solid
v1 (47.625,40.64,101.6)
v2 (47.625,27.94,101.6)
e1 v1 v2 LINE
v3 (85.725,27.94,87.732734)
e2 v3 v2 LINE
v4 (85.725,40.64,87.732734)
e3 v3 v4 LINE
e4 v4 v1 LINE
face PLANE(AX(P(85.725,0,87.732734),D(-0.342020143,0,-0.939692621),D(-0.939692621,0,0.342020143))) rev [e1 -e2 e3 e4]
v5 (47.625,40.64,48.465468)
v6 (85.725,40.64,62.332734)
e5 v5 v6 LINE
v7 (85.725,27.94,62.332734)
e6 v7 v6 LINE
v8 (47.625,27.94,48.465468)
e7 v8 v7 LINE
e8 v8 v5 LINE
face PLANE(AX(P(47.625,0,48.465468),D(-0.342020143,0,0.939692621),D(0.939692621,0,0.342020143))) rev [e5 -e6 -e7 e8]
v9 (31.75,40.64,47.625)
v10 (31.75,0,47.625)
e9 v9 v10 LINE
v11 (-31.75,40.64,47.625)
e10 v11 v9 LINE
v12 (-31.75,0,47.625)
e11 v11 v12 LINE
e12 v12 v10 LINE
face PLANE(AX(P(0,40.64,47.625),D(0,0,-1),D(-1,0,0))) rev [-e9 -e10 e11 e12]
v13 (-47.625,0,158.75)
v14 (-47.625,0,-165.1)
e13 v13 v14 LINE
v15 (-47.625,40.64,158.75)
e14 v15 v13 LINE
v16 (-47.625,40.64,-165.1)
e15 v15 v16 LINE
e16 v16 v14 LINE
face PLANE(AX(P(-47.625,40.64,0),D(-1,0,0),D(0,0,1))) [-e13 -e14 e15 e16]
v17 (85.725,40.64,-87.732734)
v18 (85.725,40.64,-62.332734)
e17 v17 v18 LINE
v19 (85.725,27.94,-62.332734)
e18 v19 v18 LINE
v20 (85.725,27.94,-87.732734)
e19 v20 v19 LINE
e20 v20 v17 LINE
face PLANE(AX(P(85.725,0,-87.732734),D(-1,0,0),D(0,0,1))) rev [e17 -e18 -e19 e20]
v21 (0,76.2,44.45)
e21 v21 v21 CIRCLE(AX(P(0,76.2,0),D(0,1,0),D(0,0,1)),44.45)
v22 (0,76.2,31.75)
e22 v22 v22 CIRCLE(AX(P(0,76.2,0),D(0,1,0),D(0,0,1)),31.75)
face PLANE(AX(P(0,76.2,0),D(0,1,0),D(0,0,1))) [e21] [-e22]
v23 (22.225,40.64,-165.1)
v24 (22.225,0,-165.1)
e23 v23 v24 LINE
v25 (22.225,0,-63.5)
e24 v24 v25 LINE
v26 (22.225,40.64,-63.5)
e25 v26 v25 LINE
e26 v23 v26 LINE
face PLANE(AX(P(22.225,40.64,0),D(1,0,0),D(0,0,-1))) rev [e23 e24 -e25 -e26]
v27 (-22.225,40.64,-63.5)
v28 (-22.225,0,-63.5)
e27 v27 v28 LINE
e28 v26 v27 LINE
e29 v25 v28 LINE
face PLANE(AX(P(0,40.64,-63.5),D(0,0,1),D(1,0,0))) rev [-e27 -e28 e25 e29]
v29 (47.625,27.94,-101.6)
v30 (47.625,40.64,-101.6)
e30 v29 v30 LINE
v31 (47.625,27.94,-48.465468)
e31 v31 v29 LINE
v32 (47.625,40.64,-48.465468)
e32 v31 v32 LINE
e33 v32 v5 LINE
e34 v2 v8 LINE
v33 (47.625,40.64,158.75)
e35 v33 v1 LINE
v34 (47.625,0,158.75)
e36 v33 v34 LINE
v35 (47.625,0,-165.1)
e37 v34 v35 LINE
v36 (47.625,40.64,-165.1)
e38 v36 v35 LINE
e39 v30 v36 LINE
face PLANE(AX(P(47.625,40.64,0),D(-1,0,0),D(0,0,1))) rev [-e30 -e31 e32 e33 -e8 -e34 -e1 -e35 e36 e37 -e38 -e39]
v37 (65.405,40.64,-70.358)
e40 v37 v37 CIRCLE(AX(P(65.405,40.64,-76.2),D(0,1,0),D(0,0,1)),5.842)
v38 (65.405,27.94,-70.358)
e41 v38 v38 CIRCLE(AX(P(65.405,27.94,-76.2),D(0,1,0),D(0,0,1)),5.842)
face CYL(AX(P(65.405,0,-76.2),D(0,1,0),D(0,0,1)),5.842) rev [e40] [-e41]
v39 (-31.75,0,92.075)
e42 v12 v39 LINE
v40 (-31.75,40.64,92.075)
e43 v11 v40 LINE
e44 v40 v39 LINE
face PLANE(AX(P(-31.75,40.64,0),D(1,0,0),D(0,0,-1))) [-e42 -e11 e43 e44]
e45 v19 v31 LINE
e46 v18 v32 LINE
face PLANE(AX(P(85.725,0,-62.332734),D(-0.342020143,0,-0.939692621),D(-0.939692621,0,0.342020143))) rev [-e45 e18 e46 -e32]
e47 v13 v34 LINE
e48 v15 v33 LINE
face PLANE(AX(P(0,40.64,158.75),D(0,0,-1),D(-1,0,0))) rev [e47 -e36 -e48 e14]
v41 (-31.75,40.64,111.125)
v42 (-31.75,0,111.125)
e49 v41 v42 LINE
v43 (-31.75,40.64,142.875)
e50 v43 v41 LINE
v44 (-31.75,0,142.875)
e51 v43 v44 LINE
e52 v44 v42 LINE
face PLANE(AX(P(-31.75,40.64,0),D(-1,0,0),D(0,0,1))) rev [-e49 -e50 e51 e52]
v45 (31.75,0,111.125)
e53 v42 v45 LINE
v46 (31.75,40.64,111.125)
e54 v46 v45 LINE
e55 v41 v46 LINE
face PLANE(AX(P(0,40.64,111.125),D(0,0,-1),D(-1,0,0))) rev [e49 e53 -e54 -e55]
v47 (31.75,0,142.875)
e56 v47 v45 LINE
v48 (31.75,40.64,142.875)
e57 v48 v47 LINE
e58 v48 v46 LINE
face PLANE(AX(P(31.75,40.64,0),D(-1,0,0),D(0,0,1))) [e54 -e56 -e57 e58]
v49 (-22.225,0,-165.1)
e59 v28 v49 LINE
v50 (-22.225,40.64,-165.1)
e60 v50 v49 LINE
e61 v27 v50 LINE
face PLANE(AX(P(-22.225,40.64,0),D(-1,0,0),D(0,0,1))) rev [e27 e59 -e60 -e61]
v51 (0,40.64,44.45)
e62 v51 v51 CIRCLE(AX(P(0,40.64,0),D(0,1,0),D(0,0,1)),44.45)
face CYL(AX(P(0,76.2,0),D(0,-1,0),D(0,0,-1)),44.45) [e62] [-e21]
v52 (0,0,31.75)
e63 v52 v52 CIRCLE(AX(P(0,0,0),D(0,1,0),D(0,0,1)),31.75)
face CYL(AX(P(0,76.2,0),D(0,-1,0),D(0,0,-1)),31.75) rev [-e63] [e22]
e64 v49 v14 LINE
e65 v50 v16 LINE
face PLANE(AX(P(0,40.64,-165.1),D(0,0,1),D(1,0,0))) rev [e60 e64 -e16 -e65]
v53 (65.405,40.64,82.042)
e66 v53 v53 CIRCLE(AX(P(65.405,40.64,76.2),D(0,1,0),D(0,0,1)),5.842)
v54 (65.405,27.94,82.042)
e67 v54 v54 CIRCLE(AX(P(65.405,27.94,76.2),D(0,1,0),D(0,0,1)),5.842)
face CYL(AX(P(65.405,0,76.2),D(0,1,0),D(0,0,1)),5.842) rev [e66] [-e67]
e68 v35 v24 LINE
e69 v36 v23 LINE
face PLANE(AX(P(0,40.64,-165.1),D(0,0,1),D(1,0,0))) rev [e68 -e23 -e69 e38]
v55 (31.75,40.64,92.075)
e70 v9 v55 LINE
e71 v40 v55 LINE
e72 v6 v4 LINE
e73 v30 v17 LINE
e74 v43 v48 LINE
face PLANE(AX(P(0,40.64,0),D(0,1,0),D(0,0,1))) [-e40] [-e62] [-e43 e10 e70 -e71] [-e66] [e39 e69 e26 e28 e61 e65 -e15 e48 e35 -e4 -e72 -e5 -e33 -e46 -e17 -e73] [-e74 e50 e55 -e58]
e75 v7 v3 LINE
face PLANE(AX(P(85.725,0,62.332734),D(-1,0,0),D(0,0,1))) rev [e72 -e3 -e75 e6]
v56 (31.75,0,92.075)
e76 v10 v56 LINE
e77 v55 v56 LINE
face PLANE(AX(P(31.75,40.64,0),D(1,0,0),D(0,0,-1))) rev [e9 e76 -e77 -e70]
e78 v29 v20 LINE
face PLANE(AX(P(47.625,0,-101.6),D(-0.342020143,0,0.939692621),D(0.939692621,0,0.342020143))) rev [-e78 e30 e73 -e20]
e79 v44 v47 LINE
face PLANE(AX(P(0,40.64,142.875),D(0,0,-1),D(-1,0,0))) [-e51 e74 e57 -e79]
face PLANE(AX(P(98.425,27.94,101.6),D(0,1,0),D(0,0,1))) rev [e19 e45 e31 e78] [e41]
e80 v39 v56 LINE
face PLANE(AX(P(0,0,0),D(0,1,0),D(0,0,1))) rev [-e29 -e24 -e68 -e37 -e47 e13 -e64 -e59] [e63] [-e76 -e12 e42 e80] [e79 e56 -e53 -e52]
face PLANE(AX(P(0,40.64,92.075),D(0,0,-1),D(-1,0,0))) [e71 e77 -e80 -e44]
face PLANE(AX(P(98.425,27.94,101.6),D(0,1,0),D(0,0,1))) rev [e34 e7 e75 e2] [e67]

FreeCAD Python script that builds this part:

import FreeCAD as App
import Part
import Sketcher

V = App.Vector
Q = App.Units.Quantity


def add_polygon(sketch, points):
    """Adds a closed chain of lines whose ends are joined by coincident constraints."""
    first, n = sketch.GeometryCount, len(points)
    for a, b in zip(points, points[1:] + points[:1]):
        sketch.addGeometry(Part.LineSegment(App.Vector(*a, 0), App.Vector(*b, 0)), False)
    for i in range(n):
        sketch.addConstraint(Sketcher.Constraint("Coincident", first + i, 2, first + (i + 1) % n, 1))

doc = App.newDocument("Part")
body = doc.addObject("PartDesign::Body", "Body")

sketch1 = body.newObject("Sketcher::SketchObject", "Sketch")
sketch1.AttachmentSupport = (doc.getObject("XZ_Plane"), [""])
sketch1.MapMode = "FlatFace"
add_polygon(sketch1, [(-22, -64), (-22, -165), (-48, -165), (-48, 159), (48, 159), (48, -165), (22, -165), (22, -64)])
add_polygon(sketch1, [(32, 143), (-32, 143), (-32, 111), (32, 111)])
add_polygon(sketch1, [(32, 92), (-32, 92), (-32, 48), (32, 48)])
sketch1.addGeometry(Part.Circle(V(0, 0, 0), V(0, 0, 1), 44), False)
sketch1.addConstraint([
    Sketcher.Constraint("Vertical", 0),
    Sketcher.Constraint("Horizontal", 1),
    Sketcher.Constraint("Vertical", 2),
    Sketcher.Constraint("Horizontal", 3),
    Sketcher.Constraint("Vertical", 4),
    Sketcher.Constraint("Horizontal", 5),
    Sketcher.Constraint("Vertical", 6),
    Sketcher.Constraint("Horizontal", 7),
    Sketcher.Constraint("Horizontal", 8),
    Sketcher.Constraint("Vertical", 9),
    Sketcher.Constraint("Horizontal", 10),
    Sketcher.Constraint("Vertical", 11),
    Sketcher.Constraint("Horizontal", 12),
    Sketcher.Constraint("Vertical", 13),
    Sketcher.Constraint("Horizontal", 14),
    Sketcher.Constraint("Vertical", 15),
    Sketcher.Constraint("Coincident", 16, 3, -1, 1),
    Sketcher.Constraint("Symmetric", 1, 2, 4, 2, -2),
    Sketcher.Constraint("Vertical", 9, 2, 12, 2),
    Sketcher.Constraint("Vertical", 11, 2, 14, 2),
    Sketcher.Constraint("Equal", 1, 5),
    Sketcher.Constraint("Equal", 7, 13),
    Sketcher.Constraint("Diameter", 16, Q("3.5 in")),
    Sketcher.Constraint("DistanceX", 1, 2, 1, 1, Q("1 in")),
    Sketcher.Constraint("DistanceY", 0, 2, 0, 1, Q("4 in")),
    Sketcher.Constraint("DistanceX", 8, 2, 8, 1, Q("2.5 in")),
    Sketcher.Constraint("DistanceY", 12, 2, 8, 2, Q("2 in")),
    Sketcher.Constraint("DistanceX", 3, 1, 3, 2, Q("3.75 in")),
    Sketcher.Constraint("DistanceY", 2, 1, 2, 2, Q("12.75 in")),
    Sketcher.Constraint("DistanceY", 9, 2, 9, 1, Q("1.25 in")),
    Sketcher.Constraint("DistanceY", 0, 2, -1, 1, Q("6.5 in")),
    Sketcher.Constraint("DistanceX", 8, 2, -1, 1, Q("1.25 in")),
    Sketcher.Constraint("DistanceY", -1, 1, 8, 2, Q("5.625 in")),
])
pad1 = body.newObject("PartDesign::Pad", "Pad")
pad1.Profile = sketch1
pad1.Length = Q("1.6 in")
pad1.Reversed = True

sketch2 = body.newObject("Sketcher::SketchObject", "Sketch001")
sketch2.AttachmentSupport = (doc.getObject("XZ_Plane"), [""])
sketch2.MapMode = "FlatFace"
sketch2.addGeometry([
    Part.Circle(V(0, 0, 0), V(0, 0, 1), 44),
    Part.Circle(V(0, 0, 0), V(0, 0, 1), 32),
], False)
sketch2.addConstraint([
    Sketcher.Constraint("Coincident", 0, 3, -1, 1),
    Sketcher.Constraint("Coincident", 1, 3, -1, 1),
    Sketcher.Constraint("Diameter", 0, Q("3.5 in")),
    Sketcher.Constraint("Diameter", 1, Q("2.5 in")),
])
pad2 = body.newObject("PartDesign::Pad", "Pad001")
pad2.Profile = sketch2
pad2.Length = Q("3 in")
pad2.Reversed = True

sketch3 = body.newObject("Sketcher::SketchObject", "Sketch002")
sketch3.AttachmentSupport = (doc.getObject("YZ_Plane"), [""])
sketch3.MapMode = "FlatFace"
sketch3.AttachmentOffset = App.Placement(V(0, 0, 1.875 * 25.4), App.Rotation())
add_polygon(sketch3, [(41, 102), (28, 102), (28, -102), (41, -102)])
sketch3.addConstraint([
    Sketcher.Constraint("Horizontal", 0),
    Sketcher.Constraint("Vertical", 1),
    Sketcher.Constraint("Horizontal", 2),
    Sketcher.Constraint("Vertical", 3),
    Sketcher.Constraint("DistanceY", 1, 2, 1, 1, Q("8 in")),
    Sketcher.Constraint("DistanceX", 0, 2, 0, 1, Q("0.5 in")),
    Sketcher.Constraint("DistanceY", -1, 1, 0, 2, Q("4 in")),
    Sketcher.Constraint("DistanceX", -1, 1, 0, 2, Q("1.1 in")),
])
pad3 = body.newObject("PartDesign::Pad", "Pad002")
pad3.Profile = sketch3
pad3.Length = Q("2 in")

sketch4 = body.newObject("Sketcher::SketchObject", "Sketch003")
sketch4.AttachmentSupport = (doc.getObject("XZ_Plane"), [""])
sketch4.MapMode = "FlatFace"
sketch4.AttachmentOffset = App.Placement(V(0, 0, -1.6 * 25.4), App.Rotation())
sketch4.addGeometry(Part.Circle(V(65, -76, 0), V(0, 0, 1), 6), False)
sketch4.addGeometry(Part.Circle(V(65, 76, 0), V(0, 0, 1), 6), False)
add_polygon(sketch4, [(48, -102), (86, -88), (86, -62), (48, -48), (48, 48), (86, 62), (86, 88), (48, 102), (98, 102), (98, -102)])
sketch4.addConstraint([
    Sketcher.Constraint("Vertical", 3),
    Sketcher.Constraint("Vertical", 5),
    Sketcher.Constraint("Vertical", 7),
    Sketcher.Constraint("Horizontal", 9),
    Sketcher.Constraint("Vertical", 10),
    Sketcher.Constraint("Horizontal", 11),
    Sketcher.Constraint("Equal", 0, 1),
    Sketcher.Constraint("Symmetric", 0, 3, 1, 3, -1),
    Sketcher.Constraint("Symmetric", 3, 2, 6, 2, -1),
    Sketcher.Constraint("Symmetric", 8, 2, 11, 2, -1),
    Sketcher.Constraint("Parallel", 2, 6),
    Sketcher.Constraint("Parallel", 4, 8),
    Sketcher.Constraint("Vertical", 5, 2, 8, 2),
    Sketcher.Constraint("Equal", 3, 7),
    Sketcher.Constraint("Diameter", 0, Q("0.46 in")),
    Sketcher.Constraint("DistanceX", 9, 1, 9, 2, Q("2 in")),
    Sketcher.Constraint("DistanceY", 3, 1, 3, 2, Q("1 in")),
    Sketcher.Constraint("DistanceY", 10, 2, 10, 1, Q("8 in")),
    Sketcher.Constraint("DistanceY", 0, 3, -1, 1, Q("3 in")),
    Sketcher.Constraint("Angle", 2, Q("20 deg")),
    Sketcher.Constraint("DistanceX", 0, 3, 2, 2, Q("0.8 in")),
    Sketcher.Constraint("DistanceX", 4, 2, 0, 3, Q("0.7 in")),
    Sketcher.Constraint("DistanceX", -1, 1, 0, 3, Q("2.575 in")),
])
pocket1 = body.newObject("PartDesign::Pocket", "Pocket")
pocket1.Profile = sketch4
pocket1.Type = "ThroughAll"
pocket1.Reversed = True

doc.recompute()
